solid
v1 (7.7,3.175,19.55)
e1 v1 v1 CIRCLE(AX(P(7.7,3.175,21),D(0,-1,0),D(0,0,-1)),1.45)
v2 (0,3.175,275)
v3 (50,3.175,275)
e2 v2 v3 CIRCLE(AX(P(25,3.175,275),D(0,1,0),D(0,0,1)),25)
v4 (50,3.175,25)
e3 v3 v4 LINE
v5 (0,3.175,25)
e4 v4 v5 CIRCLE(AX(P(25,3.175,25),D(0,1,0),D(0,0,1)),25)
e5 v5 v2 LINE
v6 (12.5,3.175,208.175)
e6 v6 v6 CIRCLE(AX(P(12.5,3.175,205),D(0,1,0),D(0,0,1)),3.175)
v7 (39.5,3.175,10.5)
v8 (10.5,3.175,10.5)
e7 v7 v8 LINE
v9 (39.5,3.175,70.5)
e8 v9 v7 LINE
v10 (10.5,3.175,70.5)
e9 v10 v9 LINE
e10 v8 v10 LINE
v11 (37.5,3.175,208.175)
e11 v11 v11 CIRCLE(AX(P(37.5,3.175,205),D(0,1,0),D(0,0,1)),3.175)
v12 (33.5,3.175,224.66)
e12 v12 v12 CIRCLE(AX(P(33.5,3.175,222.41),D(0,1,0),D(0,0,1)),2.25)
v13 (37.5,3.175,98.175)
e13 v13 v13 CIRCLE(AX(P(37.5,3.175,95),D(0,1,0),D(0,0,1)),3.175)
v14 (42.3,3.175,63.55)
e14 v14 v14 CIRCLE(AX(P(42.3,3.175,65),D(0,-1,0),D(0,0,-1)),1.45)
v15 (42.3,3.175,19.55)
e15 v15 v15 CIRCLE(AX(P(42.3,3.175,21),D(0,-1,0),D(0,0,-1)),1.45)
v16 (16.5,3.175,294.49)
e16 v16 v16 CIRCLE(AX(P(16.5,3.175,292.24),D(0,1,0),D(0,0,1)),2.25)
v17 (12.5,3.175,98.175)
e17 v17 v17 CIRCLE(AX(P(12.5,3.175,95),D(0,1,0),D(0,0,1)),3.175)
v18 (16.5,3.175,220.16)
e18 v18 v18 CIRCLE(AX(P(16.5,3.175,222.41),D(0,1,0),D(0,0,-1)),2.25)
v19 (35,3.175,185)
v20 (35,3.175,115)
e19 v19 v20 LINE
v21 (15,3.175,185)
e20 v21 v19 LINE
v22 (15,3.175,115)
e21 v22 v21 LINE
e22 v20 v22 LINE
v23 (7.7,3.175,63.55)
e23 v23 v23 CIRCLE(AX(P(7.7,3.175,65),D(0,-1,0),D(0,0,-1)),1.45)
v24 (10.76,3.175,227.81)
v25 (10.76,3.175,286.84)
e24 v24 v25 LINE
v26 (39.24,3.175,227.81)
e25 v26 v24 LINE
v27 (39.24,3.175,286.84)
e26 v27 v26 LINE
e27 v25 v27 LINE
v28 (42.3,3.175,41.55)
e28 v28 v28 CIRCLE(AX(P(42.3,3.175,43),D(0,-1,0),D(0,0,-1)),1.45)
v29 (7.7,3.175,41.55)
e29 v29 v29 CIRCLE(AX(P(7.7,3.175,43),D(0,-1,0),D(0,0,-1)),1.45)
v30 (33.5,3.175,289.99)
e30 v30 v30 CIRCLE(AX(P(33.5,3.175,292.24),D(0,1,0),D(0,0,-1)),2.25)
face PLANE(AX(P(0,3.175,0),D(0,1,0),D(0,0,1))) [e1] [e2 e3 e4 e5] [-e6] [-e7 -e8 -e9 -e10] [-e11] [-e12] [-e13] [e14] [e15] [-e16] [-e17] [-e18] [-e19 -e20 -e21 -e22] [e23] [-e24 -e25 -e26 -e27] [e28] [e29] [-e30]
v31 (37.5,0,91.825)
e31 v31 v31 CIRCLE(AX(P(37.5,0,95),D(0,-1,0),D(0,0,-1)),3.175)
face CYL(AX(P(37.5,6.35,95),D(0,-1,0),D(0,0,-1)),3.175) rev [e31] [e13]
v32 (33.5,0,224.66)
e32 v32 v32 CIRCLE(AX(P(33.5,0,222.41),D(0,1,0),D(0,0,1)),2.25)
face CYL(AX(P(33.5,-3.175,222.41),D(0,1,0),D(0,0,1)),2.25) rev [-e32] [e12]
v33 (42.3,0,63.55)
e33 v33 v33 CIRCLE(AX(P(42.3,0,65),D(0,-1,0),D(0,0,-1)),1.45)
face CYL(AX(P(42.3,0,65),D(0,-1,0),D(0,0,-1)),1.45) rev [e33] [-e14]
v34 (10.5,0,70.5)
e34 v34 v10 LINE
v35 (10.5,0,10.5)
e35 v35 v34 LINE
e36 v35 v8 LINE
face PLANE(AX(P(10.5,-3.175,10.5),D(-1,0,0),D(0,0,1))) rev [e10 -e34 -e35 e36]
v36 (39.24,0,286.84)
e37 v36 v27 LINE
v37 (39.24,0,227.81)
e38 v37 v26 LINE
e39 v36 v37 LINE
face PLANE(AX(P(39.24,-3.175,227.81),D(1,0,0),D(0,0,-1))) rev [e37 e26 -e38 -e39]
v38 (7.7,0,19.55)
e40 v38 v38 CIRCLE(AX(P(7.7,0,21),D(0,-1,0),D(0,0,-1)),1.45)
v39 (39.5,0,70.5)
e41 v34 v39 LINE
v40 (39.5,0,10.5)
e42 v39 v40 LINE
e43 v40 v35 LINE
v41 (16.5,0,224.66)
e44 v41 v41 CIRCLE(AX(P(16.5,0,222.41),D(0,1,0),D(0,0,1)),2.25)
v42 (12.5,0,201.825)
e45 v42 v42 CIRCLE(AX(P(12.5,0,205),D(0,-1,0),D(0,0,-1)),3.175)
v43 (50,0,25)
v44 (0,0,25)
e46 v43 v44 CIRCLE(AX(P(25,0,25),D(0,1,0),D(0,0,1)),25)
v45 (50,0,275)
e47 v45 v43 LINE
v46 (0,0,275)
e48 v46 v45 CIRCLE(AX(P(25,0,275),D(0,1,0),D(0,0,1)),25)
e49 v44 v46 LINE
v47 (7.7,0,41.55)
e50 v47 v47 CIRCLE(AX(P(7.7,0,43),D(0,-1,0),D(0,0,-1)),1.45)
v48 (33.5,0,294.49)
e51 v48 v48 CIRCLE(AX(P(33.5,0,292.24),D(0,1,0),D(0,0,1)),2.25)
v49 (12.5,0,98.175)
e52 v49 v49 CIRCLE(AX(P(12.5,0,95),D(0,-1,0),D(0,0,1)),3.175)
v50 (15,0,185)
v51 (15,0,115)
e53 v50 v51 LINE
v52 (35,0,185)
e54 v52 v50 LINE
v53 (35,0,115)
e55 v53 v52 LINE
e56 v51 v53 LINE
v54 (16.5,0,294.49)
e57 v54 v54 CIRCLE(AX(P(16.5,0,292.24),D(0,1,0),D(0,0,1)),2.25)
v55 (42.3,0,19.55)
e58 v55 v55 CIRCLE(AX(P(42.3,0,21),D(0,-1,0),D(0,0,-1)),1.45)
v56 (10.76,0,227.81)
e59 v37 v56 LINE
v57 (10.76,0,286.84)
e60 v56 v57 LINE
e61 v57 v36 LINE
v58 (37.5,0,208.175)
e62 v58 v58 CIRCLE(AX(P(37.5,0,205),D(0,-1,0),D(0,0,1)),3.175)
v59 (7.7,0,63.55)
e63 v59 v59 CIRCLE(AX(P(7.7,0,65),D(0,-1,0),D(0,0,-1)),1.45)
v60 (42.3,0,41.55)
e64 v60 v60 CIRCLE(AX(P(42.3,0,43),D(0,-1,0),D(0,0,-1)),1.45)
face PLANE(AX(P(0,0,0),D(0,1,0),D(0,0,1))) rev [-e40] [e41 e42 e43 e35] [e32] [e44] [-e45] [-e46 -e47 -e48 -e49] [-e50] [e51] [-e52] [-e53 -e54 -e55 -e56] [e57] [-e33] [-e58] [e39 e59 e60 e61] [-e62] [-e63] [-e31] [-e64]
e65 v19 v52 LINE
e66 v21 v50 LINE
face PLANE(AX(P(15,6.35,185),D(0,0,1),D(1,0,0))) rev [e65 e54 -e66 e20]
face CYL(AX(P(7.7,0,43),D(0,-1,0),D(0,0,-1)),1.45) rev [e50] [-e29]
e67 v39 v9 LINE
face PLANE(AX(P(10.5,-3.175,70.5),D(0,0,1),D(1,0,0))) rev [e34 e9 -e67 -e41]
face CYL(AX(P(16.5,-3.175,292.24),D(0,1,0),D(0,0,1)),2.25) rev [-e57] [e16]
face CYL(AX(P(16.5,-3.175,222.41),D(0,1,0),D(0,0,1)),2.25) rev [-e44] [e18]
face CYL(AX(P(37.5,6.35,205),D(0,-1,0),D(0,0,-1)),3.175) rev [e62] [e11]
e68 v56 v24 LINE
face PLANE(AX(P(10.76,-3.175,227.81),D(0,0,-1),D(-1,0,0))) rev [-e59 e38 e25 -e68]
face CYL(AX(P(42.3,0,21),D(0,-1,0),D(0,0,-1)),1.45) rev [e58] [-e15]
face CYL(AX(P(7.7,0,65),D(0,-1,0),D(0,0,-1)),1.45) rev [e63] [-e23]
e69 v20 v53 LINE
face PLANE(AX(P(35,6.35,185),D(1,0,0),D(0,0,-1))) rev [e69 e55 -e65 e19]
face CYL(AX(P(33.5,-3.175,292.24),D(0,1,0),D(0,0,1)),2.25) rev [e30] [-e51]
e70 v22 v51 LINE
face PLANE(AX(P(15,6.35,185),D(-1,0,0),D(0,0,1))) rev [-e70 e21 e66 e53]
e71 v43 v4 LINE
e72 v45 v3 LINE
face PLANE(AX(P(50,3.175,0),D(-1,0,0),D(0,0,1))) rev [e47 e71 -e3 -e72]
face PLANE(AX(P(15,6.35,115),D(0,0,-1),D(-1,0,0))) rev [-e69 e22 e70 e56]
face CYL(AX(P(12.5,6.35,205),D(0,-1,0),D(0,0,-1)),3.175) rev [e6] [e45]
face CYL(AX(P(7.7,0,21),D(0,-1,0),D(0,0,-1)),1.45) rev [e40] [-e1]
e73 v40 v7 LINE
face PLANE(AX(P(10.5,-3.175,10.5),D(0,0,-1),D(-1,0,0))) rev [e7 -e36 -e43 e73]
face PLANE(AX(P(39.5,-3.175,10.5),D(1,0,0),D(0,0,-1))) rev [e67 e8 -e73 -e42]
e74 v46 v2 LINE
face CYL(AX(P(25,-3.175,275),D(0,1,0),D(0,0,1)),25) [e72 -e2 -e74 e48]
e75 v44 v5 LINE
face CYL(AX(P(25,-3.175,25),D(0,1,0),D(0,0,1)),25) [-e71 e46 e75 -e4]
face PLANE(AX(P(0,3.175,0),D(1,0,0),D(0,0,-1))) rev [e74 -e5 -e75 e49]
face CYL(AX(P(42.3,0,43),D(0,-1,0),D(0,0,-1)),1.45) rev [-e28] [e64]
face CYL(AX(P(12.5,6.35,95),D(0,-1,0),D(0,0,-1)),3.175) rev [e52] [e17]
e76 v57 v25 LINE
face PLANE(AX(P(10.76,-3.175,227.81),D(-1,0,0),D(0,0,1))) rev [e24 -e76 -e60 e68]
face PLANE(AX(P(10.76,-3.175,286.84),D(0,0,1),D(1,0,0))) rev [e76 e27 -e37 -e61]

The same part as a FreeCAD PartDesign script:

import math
import FreeCAD as App
import Part
import Sketcher
from FreeCAD import Vector

doc = App.newDocument("Part")
body = doc.addObject("PartDesign::Body", "Body")

# Sketch on XZ plane
sketch1 = body.newObject("Sketcher::SketchObject", "Sketch")
sketch1.AttachmentSupport = (doc.getObject("XZ_Plane"), [""])
sketch1.MapMode = "FlatFace"
sketch1.addGeometry([
    Part.LineSegment(Vector(0, 0, 0), Vector(0, 300, 0)),
    Part.LineSegment(Vector(0, 300, 0), Vector(50, 300, 0)),
    Part.LineSegment(Vector(50, 300, 0), Vector(50, 0, 0)),
    Part.LineSegment(Vector(50, 0, 0), Vector(0, 0, 0)),
], False)
sketch1.addConstraint([
    Sketcher.Constraint("Coincident", 0, 2, 1, 1),
    Sketcher.Constraint("Coincident", 1, 2, 2, 1),
    Sketcher.Constraint("Coincident", 2, 2, 3, 1),
    Sketcher.Constraint("Coincident", 3, 2, 0, 1),
    Sketcher.Constraint("Vertical", 0),
    Sketcher.Constraint("Horizontal", 1),
    Sketcher.Constraint("Vertical", 2),
    Sketcher.Constraint("Horizontal", 3),
    Sketcher.Constraint("Coincident", 3, 2, -1, 1),
    Sketcher.Constraint("DistanceX", 1, 1, 1, 2, 50.0),
    Sketcher.Constraint("DistanceY", 0, 1, 0, 2, 300.0),
])
pad1 = body.newObject("PartDesign::Pad", "Pad")
pad1.Profile = sketch1
pad1.Length = 3.175
pad1.Reversed = True

# Sketch on XZ plane
sketch2 = body.newObject("Sketcher::SketchObject", "Sketch001")
sketch2.AttachmentSupport = (doc.getObject("XZ_Plane"), [""])
sketch2.MapMode = "FlatFace"
sketch2.AttachmentOffset = App.Placement(Vector(0, 0, -3.175), App.Rotation())
sketch2.addGeometry([
    Part.Circle(Vector(7.7, 21, 0), Vector(0, 0, 1), 1),  # 0
    Part.Circle(Vector(7.7, 43, 0), Vector(0, 0, 1), 1),  # 1
    Part.Circle(Vector(7.7, 65, 0), Vector(0, 0, 1), 1),  # 2
    Part.Circle(Vector(42.3, 65, 0), Vector(0, 0, 1), 1),  # 3
    Part.Circle(Vector(42.3, 43, 0), Vector(0, 0, 1), 1),  # 4
    Part.Circle(Vector(42.3, 21, 0), Vector(0, 0, 1), 1),  # 5
    Part.Circle(Vector(16.5, 292.2, 0), Vector(0, 0, 1), 2.2),  # 6
    Part.Circle(Vector(33.5, 292.2, 0), Vector(0, 0, 1), 2.2),  # 7
    Part.Circle(Vector(16.5, 222.4, 0), Vector(0, 0, 1), 2.2),  # 8
    Part.Circle(Vector(33.5, 222.4, 0), Vector(0, 0, 1), 2.2),  # 9
    Part.LineSegment(Vector(10.5, 10.5, 0), Vector(10.5, 70.5, 0)),  # 10
    Part.LineSegment(Vector(10.5, 70.5, 0), Vector(39.5, 70.5, 0)),  # 11
    Part.LineSegment(Vector(39.5, 70.5, 0), Vector(39.5, 10.5, 0)),  # 12
    Part.LineSegment(Vector(39.5, 10.5, 0), Vector(10.5, 10.5, 0)),  # 13
    Part.LineSegment(Vector(10.8, 227.8, 0), Vector(10.8, 286.8, 0)),  # 14
    Part.LineSegment(Vector(10.8, 286.8, 0), Vector(39.2, 286.8, 0)),  # 15
    Part.LineSegment(Vector(39.2, 286.8, 0), Vector(39.2, 227.8, 0)),  # 16
    Part.LineSegment(Vector(39.2, 227.8, 0), Vector(10.8, 227.8, 0)),  # 17
], False)
sketch2.addConstraint([
    Sketcher.Constraint("Coincident", 10, 2, 11, 1),
    Sketcher.Constraint("Coincident", 11, 2, 12, 1),
    Sketcher.Constraint("Coincident", 12, 2, 13, 1),
    Sketcher.Constraint("Coincident", 13, 2, 10, 1),
    Sketcher.Constraint("Coincident", 14, 2, 15, 1),
    Sketcher.Constraint("Coincident", 15, 2, 16, 1),
    Sketcher.Constraint("Coincident", 16, 2, 17, 1),
    Sketcher.Constraint("Coincident", 17, 2, 14, 1),
    Sketcher.Constraint("Vertical", 10),
    Sketcher.Constraint("Horizontal", 11),
    Sketcher.Constraint("Vertical", 12),
    Sketcher.Constraint("Horizontal", 13),
    Sketcher.Constraint("Vertical", 14),
    Sketcher.Constraint("Horizontal", 15),
    Sketcher.Constraint("Vertical", 16),
    Sketcher.Constraint("Horizontal", 17),
    Sketcher.Constraint("Equal", 0, 1),
    Sketcher.Constraint("Equal", 1, 2),
    Sketcher.Constraint("Equal", 2, 3),
    Sketcher.Constraint("Equal", 3, 4),
    Sketcher.Constraint("Equal", 4, 5),
    Sketcher.Constraint("Equal", 6, 7),
    Sketcher.Constraint("Equal", 7, 8),
    Sketcher.Constraint("Equal", 8, 9),
    Sketcher.Constraint("Horizontal", 2, 3, 3, 3),
    Sketcher.Constraint("Horizontal", 1, 3, 4, 3),
    Sketcher.Constraint("Horizontal", 0, 3, 5, 3),
    Sketcher.Constraint("Horizontal", 6, 3, 7, 3),
    Sketcher.Constraint("Horizontal", 8, 3, 9, 3),
    Sketcher.Constraint("Vertical", 0, 3, 1, 3),
    Sketcher.Constraint("Vertical", 1, 3, 2, 3),
    Sketcher.Constraint("Vertical", 3, 3, 4, 3),
    Sketcher.Constraint("Vertical", 4, 3, 5, 3),
    Sketcher.Constraint("Vertical", 6, 3, 8, 3),
    Sketcher.Constraint("Vertical", 7, 3, 9, 3),
    Sketcher.Constraint("Diameter", 6, 4.5),
    Sketcher.Constraint("Diameter", 0, 2.05),
    Sketcher.Constraint("DistanceX", 11, 1, 11, 2, 29.0),
    Sketcher.Constraint("DistanceY", 10, 1, 10, 2, 60.0),
    Sketcher.Constraint("DistanceY", -1, 1, 0, 3, 21.0),
    Sketcher.Constraint("DistanceY", -1, 1, 1, 3, 43.0),
    Sketcher.Constraint("DistanceY", -1, 1, 2, 3, 65.0),
    Sketcher.Constraint("DistanceX", 6, 3, 7, 3, 17.0),
    Sketcher.Constraint("DistanceX", 15, 1, 15, 2, 28.48),
    Sketcher.Constraint("DistanceY", 14, 1, 14, 2, 59.03),
    Sketcher.Constraint("DistanceX", -1, 1, 0, 3, 7.7),
    Sketcher.Constraint("DistanceX", -1, 1, 3, 3, 42.3),
    Sketcher.Constraint("DistanceX", -1, 1, 6, 3, 16.5),
    Sketcher.Constraint("DistanceX", -1, 1, 10, 2, 10.5),
    Sketcher.Constraint("DistanceY", -1, 1, 10, 2, 70.5),
    Sketcher.Constraint("DistanceY", 14, 2, 6, 3, 5.4),
    Sketcher.Constraint("DistanceY", 9, 3, 16, 2, 5.4),
    Sketcher.Constraint("DistanceY", -1, 1, 6, 3, 292.24),
    Sketcher.Constraint("DistanceX", -1, 1, 14, 2, 10.76),
])
pocket1 = body.newObject("PartDesign::Pocket", "Pocket")
pocket1.Profile = sketch2
pocket1.Length = 6.35
pocket1.Reversed = True

# Sketch on XZ plane
sketch3 = body.newObject("Sketcher::SketchObject", "Sketch002")
sketch3.AttachmentSupport = (doc.getObject("XZ_Plane"), [""])
sketch3.MapMode = "FlatFace"
sketch3.AttachmentOffset = App.Placement(Vector(0, 0, -3.175), App.Rotation())
sketch3.addGeometry([
    Part.LineSegment(Vector(0, 0, 0), Vector(0, 25, 0)),  # 0
    Part.ArcOfCircle(Part.Circle(Vector(25, 25, 0), Vector(0, 0, 1), 25), math.radians(180), math.radians(270)),  # 1
    Part.LineSegment(Vector(25, 0, 0), Vector(0, 0, 0)),  # 2
    Part.ArcOfCircle(Part.Circle(Vector(25, 25, 0), Vector(0, 0, 1), 25), math.radians(-90), math.radians(0)),  # 3
    Part.LineSegment(Vector(50, 25, 0), Vector(50, 0, 0)),  # 4
    Part.LineSegment(Vector(50, 0, 0), Vector(25, 0, 0)),  # 5
    Part.ArcOfCircle(Part.Circle(Vector(25, 275, 0), Vector(0, 0, 1), 25), math.radians(90), math.radians(180)),  # 6
    Part.LineSegment(Vector(0, 275, 0), Vector(0, 300, 0)),  # 7
    Part.LineSegment(Vector(0, 300, 0), Vector(25, 300, 0)),  # 8
    Part.LineSegment(Vector(50, 300, 0), Vector(50, 275, 0)),  # 9
    Part.ArcOfCircle(Part.Circle(Vector(25, 275, 0), Vector(0, 0, 1), 25), math.radians(0), math.radians(90)),  # 10
    Part.LineSegment(Vector(25, 300, 0), Vector(50, 300, 0)),  # 11
], False)
sketch3.addConstraint([
    Sketcher.Constraint("Tangent", 0, 2, 1, 1),
    Sketcher.Constraint("Tangent", 1, 2, 2, 1),
    Sketcher.Constraint("Coincident", 2, 2, 0, 1),
    Sketcher.Constraint("Tangent", 3, 2, 4, 1),
    Sketcher.Constraint("Coincident", 4, 2, 5, 1),
    Sketcher.Constraint("Tangent", 5, 2, 3, 1),
    Sketcher.Constraint("Tangent", 6, 2, 7, 1),
    Sketcher.Constraint("Coincident", 7, 2, 8, 1),
    Sketcher.Constraint("Tangent", 8, 2, 6, 1),
    Sketcher.Constraint("Tangent", 9, 2, 10, 1),
    Sketcher.Constraint("Tangent", 10, 2, 11, 1),
    Sketcher.Constraint("Coincident", 11, 2, 9, 1),
    Sketcher.Constraint("Vertical", 0),
    Sketcher.Constraint("Horizontal", 2),
    Sketcher.Constraint("Vertical", 4),
    Sketcher.Constraint("Horizontal", 5),
    Sketcher.Constraint("Vertical", 7),
    Sketcher.Constraint("Horizontal", 8),
    Sketcher.Constraint("Vertical", 9),
    Sketcher.Constraint("Horizontal", 11),
    Sketcher.Constraint("Coincident", 2, 2, -1, 1),
    Sketcher.Constraint("Coincident", 3, 3, 1, 3),
    Sketcher.Constraint("Coincident", 10, 3, 6, 3),
    Sketcher.Constraint("Equal", 1, 3),
    Sketcher.Constraint("Equal", 3, 6),
    Sketcher.Constraint("Equal", 6, 10),
    Sketcher.Constraint("PointOnObject", 6, 2, -2),
    Sketcher.Constraint("Radius", 1, 25.0),
    Sketcher.Constraint("DistanceY", -1, 1, 6, 3, 275.0),
])
pocket2 = body.newObject("PartDesign::Pocket", "Pocket001")
pocket2.Profile = sketch3
pocket2.Length = 6.35
pocket2.Reversed = True

# Sketch on XZ plane
sketch4 = body.newObject("Sketcher::SketchObject", "Sketch003")
sketch4.AttachmentSupport = (doc.getObject("XZ_Plane"), [""])
sketch4.MapMode = "FlatFace"
sketch4.addGeometry([
    Part.Circle(Vector(12.5, 205, 0), Vector(0, 0, 1), 3.2),  # 0
    Part.Circle(Vector(12.5, 95, 0), Vector(0, 0, 1), 3.2),  # 1
    Part.Circle(Vector(37.5, 95, 0), Vector(0, 0, 1), 3.2),  # 2
    Part.Circle(Vector(37.5, 205, 0), Vector(0, 0, 1), 3.2),  # 3
    Part.LineSegment(Vector(15, 185, 0), Vector(15, 115, 0)),  # 4
    Part.LineSegment(Vector(15, 115, 0), Vector(35, 115, 0)),  # 5
    Part.LineSegment(Vector(35, 115, 0), Vector(35, 185, 0)),  # 6
    Part.LineSegment(Vector(35, 185, 0), Vector(15, 185, 0)),  # 7
], False)
sketch4.addConstraint([
    Sketcher.Constraint("Coincident", 4, 2, 5, 1),
    Sketcher.Constraint("Coincident", 5, 2, 6, 1),
    Sketcher.Constraint("Coincident", 6, 2, 7, 1),
    Sketcher.Constraint("Coincident", 7, 2, 4, 1),
    Sketcher.Constraint("Vertical", 4),
    Sketcher.Constraint("Horizontal", 5),
    Sketcher.Constraint("Vertical", 6),
    Sketcher.Constraint("Horizontal", 7),
    Sketcher.Constraint("Equal", 0, 1),
    Sketcher.Constraint("Equal", 1, 2),
    Sketcher.Constraint("Equal", 2, 3),
    Sketcher.Constraint("Horizontal", 1, 3, 2, 3),
    Sketcher.Constraint("Horizontal", 0, 3, 3, 3),
    Sketcher.Constraint("Vertical", 0, 3, 1, 3),
    Sketcher.Constraint("Vertical", 2, 3, 3, 3),
    Sketcher.Constraint("Diameter", 0, 6.35),
    Sketcher.Constraint("DistanceX", 5, 1, 5, 2, 20.0),
    Sketcher.Constraint("DistanceY", 4, 2, 4, 1, 70.0),
    Sketcher.Constraint("DistanceY", -1, 1, 0, 3, 205.0),
    Sketcher.Constraint("DistanceY", -1, 1, 1, 3, 95.0),
    Sketcher.Constraint("DistanceX", -1, 1, 4, 2, 15.0),
    Sketcher.Constraint("DistanceY", -1, 1, 4, 2, 115.0),
    Sketcher.Constraint("DistanceX", 1, 3, 2, 3, 25.0),
    Sketcher.Constraint("DistanceX", -1, 1, 0, 3, 12.5),
])
pocket3 = body.newObject("PartDesign::Pocket", "Pocket002")
pocket3.Profile = sketch4
pocket3.Length = 6.35

# Sketch on XZ plane
sketch5 = body.newObject("Sketcher::SketchObject", "Sketch004")
sketch5.AttachmentSupport = (doc.getObject("XZ_Plane"), [""])
sketch5.MapMode = "FlatFace"
sketch5.addGeometry([
    Part.Circle(Vector(7.7, 65, 0), Vector(0, 0, 1), 1.4),  # 0
    Part.Circle(Vector(42.3, 65, 0), Vector(0, 0, 1), 1.4),  # 1
    Part.Circle(Vector(7.7, 43, 0), Vector(0, 0, 1), 1.4),  # 2
    Part.Circle(Vector(42.3, 43, 0), Vector(0, 0, 1), 1.4),  # 3
    Part.Circle(Vector(42.3, 21, 0), Vector(0, 0, 1), 1.4),  # 4
    Part.Circle(Vector(7.7, 21, 0), Vector(0, 0, 1), 1.4),  # 5
], False)
sketch5.addConstraint([
    Sketcher.Constraint("Equal", 0, 1),
    Sketcher.Constraint("Equal", 1, 2),
    Sketcher.Constraint("Equal", 2, 3),
    Sketcher.Constraint("Equal", 3, 4),
    Sketcher.Constraint("Equal", 4, 5),
    Sketcher.Constraint("Horizontal", 0, 3, 1, 3),
    Sketcher.Constraint("Horizontal", 2, 3, 3, 3),
    Sketcher.Constraint("Horizontal", 4, 3, 5, 3),
    Sketcher.Constraint("Vertical", 0, 3, 2, 3),
    Sketcher.Constraint("Vertical", 1, 3, 3, 3),
    Sketcher.Constraint("Vertical", 3, 3, 4, 3),
    Sketcher.Constraint("Vertical", 2, 3, 5, 3),
    Sketcher.Constraint("Diameter", 0, 2.9),
    Sketcher.Constraint("DistanceY", -1, 1, 0, 3, 65.0),
    Sketcher.Constraint("DistanceY", -1, 1, 2, 3, 43.0),
    Sketcher.Constraint("DistanceY", -1, 1, 4, 3, 21.0),
    Sketcher.Constraint("DistanceX", -1, 1, 0, 3, 7.7),
    Sketcher.Constraint("DistanceX", -1, 1, 1, 3, 42.3),
])
doc.recompute()
hole = body.newObject("PartDesign::Hole", "Hole")
hole.Profile = sketch5
hole.ThreadType = "None"
hole.Diameter = 2.9
hole.DepthType = "ThroughAll"

doc.recompute()
